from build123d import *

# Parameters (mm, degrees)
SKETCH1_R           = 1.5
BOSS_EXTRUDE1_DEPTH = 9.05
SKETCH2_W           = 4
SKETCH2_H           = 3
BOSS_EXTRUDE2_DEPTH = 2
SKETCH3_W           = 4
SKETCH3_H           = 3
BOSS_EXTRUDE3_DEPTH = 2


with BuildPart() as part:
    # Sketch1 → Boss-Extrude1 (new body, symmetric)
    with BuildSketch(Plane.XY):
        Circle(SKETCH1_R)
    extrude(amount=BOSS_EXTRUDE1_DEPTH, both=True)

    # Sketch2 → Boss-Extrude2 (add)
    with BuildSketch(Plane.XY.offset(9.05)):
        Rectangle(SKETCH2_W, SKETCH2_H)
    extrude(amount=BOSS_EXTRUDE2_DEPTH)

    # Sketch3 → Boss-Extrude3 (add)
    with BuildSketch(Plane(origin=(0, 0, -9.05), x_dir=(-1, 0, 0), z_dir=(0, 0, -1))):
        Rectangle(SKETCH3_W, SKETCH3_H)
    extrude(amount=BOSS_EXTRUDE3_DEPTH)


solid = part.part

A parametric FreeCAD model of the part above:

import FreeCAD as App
import Part
import Sketcher

doc = App.newDocument("Part")
body = doc.addObject("PartDesign::Body", "Body")

# Sketch on XY plane
sketch1 = body.newObject("Sketcher::SketchObject", "Sketch")
sketch1.AttachmentSupport = (doc.getObject("XY_Plane"), [""])
sketch1.MapMode = "FlatFace"
sketch1.addGeometry(Part.Circle(App.Vector(0, 0, 0), App.Vector(0, 0, 1), 1.5), False)
sketch1.addConstraint([
    Sketcher.Constraint("Coincident", 0, 3, -1, 1),
    Sketcher.Constraint("Diameter", 0, 3.0),
])
pad1 = body.newObject("PartDesign::Pad", "Pad")
pad1.Profile = sketch1
pad1.Length = 18.1
pad1.Midplane = True

# Sketch on XY plane
sketch2 = body.newObject("Sketcher::SketchObject", "Sketch001")
sketch2.AttachmentSupport = (doc.getObject("XY_Plane"), [""])
sketch2.MapMode = "FlatFace"
sketch2.AttachmentOffset = App.Placement(App.Vector(0, 0, 9.05), App.Rotation())
sketch2.addGeometry([
    Part.LineSegment(App.Vector(-2, 1.5, 0), App.Vector(-2, -1.5, 0)),
    Part.LineSegment(App.Vector(-2, -1.5, 0), App.Vector(2, -1.5, 0)),
    Part.LineSegment(App.Vector(2, -1.5, 0), App.Vector(2, 1.5, 0)),
    Part.LineSegment(App.Vector(2, 1.5, 0), App.Vector(-2, 1.5, 0)),
], False)
sketch2.addConstraint([
    Sketcher.Constraint("Coincident", 0, 2, 1, 1),
    Sketcher.Constraint("Coincident", 1, 2, 2, 1),
    Sketcher.Constraint("Coincident", 2, 2, 3, 1),
    Sketcher.Constraint("Coincident", 3, 2, 0, 1),
    Sketcher.Constraint("Vertical", 0),
    Sketcher.Constraint("Horizontal", 1),
    Sketcher.Constraint("Vertical", 2),
    Sketcher.Constraint("Horizontal", 3),
    Sketcher.Constraint("Symmetric", 0, 2, 2, 2, -1, 1),
    Sketcher.Constraint("DistanceX", 1, 1, 1, 2, 4.0),
    Sketcher.Constraint("DistanceY", 0, 2, 0, 1, 3.0),
])
pad2 = body.newObject("PartDesign::Pad", "Pad001")
pad2.Profile = sketch2
pad2.Length = 2

# Sketch on XY plane
sketch3 = body.newObject("Sketcher::SketchObject", "Sketch002")
sketch3.AttachmentSupport = (doc.getObject("XY_Plane"), [""])
sketch3.MapMode = "FlatFace"
sketch3.AttachmentOffset = App.Placement(App.Vector(0, 0, -9.05), App.Rotation())
sketch3.addGeometry([
    Part.LineSegment(App.Vector(2, 1.5, 0), App.Vector(2, -1.5, 0)),
    Part.LineSegment(App.Vector(2, -1.5, 0), App.Vector(-2, -1.5, 0)),
    Part.LineSegment(App.Vector(-2, -1.5, 0), App.Vector(-2, 1.5, 0)),
    Part.LineSegment(App.Vector(-2, 1.5, 0), App.Vector(2, 1.5, 0)),
], False)
sketch3.addConstraint([
    Sketcher.Constraint("Coincident", 0, 2, 1, 1),
    Sketcher.Constraint("Coincident", 1, 2, 2, 1),
    Sketcher.Constraint("Coincident", 2, 2, 3, 1),
    Sketcher.Constraint("Coincident", 3, 2, 0, 1),
    Sketcher.Constraint("Vertical", 0),
    Sketcher.Constraint("Horizontal", 1),
    Sketcher.Constraint("Vertical", 2),
    Sketcher.Constraint("Horizontal", 3),
    Sketcher.Constraint("Symmetric", 0, 2, 2, 2, -1, 1),
    Sketcher.Constraint("DistanceX", 1, 2, 1, 1, 4.0),
    Sketcher.Constraint("DistanceY", 0, 2, 0, 1, 3.0),
])
pad3 = body.newObject("PartDesign::Pad", "Pad002")
pad3.Profile = sketch3
pad3.Length = 2
pad3.Reversed = True

doc.recompute()
